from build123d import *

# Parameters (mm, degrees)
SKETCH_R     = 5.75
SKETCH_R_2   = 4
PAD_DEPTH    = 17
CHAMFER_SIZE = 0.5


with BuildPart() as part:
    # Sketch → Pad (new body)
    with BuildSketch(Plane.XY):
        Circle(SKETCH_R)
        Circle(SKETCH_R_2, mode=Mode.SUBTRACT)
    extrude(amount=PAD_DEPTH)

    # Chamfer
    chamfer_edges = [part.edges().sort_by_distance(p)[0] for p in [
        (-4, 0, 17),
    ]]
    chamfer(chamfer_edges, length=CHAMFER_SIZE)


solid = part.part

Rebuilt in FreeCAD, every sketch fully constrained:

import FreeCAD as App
import Part
import Sketcher

V = App.Vector
Q = App.Units.Quantity


def edges_at(feature, points):
    """Names of the edges that pass closest to the given points."""
    edges = feature.Shape.Edges
    near = lambda p: min(range(len(edges)), key=lambda i: edges[i].distToShape(Part.Vertex(*p))[0])
    return sorted({f"Edge{near(p) + 1}" for p in points})

doc = App.newDocument("Part")
body = doc.addObject("PartDesign::Body", "Body")

sketch1 = body.newObject("Sketcher::SketchObject", "Sketch")
sketch1.AttachmentSupport = (doc.getObject("XY_Plane"), [""])
sketch1.MapMode = "FlatFace"
sketch1.addGeometry([
    Part.Circle(V(0, 0, 0), V(0, 0, 1), 5.75),
    Part.Circle(V(0, 0, 0), V(0, 0, 1), 4),
], False)
sketch1.addConstraint([
    Sketcher.Constraint("Coincident", 0, 3, -1, 1),
    Sketcher.Constraint("Coincident", 1, 3, -1, 1),
    Sketcher.Constraint("Diameter", 1, Q("8 mm")),
    Sketcher.Constraint("Diameter", 0, Q("11.5 mm")),
])
pad1 = body.newObject("PartDesign::Pad", "Pad")
pad1.Profile = sketch1
pad1.Length = 17
doc.recompute()

chamfer = body.newObject("PartDesign::Chamfer", "Chamfer")
chamfer.Base = (pad1, edges_at(pad1, [(-4, 0, 17)]))
chamfer.Size = 0.5

doc.recompute()
